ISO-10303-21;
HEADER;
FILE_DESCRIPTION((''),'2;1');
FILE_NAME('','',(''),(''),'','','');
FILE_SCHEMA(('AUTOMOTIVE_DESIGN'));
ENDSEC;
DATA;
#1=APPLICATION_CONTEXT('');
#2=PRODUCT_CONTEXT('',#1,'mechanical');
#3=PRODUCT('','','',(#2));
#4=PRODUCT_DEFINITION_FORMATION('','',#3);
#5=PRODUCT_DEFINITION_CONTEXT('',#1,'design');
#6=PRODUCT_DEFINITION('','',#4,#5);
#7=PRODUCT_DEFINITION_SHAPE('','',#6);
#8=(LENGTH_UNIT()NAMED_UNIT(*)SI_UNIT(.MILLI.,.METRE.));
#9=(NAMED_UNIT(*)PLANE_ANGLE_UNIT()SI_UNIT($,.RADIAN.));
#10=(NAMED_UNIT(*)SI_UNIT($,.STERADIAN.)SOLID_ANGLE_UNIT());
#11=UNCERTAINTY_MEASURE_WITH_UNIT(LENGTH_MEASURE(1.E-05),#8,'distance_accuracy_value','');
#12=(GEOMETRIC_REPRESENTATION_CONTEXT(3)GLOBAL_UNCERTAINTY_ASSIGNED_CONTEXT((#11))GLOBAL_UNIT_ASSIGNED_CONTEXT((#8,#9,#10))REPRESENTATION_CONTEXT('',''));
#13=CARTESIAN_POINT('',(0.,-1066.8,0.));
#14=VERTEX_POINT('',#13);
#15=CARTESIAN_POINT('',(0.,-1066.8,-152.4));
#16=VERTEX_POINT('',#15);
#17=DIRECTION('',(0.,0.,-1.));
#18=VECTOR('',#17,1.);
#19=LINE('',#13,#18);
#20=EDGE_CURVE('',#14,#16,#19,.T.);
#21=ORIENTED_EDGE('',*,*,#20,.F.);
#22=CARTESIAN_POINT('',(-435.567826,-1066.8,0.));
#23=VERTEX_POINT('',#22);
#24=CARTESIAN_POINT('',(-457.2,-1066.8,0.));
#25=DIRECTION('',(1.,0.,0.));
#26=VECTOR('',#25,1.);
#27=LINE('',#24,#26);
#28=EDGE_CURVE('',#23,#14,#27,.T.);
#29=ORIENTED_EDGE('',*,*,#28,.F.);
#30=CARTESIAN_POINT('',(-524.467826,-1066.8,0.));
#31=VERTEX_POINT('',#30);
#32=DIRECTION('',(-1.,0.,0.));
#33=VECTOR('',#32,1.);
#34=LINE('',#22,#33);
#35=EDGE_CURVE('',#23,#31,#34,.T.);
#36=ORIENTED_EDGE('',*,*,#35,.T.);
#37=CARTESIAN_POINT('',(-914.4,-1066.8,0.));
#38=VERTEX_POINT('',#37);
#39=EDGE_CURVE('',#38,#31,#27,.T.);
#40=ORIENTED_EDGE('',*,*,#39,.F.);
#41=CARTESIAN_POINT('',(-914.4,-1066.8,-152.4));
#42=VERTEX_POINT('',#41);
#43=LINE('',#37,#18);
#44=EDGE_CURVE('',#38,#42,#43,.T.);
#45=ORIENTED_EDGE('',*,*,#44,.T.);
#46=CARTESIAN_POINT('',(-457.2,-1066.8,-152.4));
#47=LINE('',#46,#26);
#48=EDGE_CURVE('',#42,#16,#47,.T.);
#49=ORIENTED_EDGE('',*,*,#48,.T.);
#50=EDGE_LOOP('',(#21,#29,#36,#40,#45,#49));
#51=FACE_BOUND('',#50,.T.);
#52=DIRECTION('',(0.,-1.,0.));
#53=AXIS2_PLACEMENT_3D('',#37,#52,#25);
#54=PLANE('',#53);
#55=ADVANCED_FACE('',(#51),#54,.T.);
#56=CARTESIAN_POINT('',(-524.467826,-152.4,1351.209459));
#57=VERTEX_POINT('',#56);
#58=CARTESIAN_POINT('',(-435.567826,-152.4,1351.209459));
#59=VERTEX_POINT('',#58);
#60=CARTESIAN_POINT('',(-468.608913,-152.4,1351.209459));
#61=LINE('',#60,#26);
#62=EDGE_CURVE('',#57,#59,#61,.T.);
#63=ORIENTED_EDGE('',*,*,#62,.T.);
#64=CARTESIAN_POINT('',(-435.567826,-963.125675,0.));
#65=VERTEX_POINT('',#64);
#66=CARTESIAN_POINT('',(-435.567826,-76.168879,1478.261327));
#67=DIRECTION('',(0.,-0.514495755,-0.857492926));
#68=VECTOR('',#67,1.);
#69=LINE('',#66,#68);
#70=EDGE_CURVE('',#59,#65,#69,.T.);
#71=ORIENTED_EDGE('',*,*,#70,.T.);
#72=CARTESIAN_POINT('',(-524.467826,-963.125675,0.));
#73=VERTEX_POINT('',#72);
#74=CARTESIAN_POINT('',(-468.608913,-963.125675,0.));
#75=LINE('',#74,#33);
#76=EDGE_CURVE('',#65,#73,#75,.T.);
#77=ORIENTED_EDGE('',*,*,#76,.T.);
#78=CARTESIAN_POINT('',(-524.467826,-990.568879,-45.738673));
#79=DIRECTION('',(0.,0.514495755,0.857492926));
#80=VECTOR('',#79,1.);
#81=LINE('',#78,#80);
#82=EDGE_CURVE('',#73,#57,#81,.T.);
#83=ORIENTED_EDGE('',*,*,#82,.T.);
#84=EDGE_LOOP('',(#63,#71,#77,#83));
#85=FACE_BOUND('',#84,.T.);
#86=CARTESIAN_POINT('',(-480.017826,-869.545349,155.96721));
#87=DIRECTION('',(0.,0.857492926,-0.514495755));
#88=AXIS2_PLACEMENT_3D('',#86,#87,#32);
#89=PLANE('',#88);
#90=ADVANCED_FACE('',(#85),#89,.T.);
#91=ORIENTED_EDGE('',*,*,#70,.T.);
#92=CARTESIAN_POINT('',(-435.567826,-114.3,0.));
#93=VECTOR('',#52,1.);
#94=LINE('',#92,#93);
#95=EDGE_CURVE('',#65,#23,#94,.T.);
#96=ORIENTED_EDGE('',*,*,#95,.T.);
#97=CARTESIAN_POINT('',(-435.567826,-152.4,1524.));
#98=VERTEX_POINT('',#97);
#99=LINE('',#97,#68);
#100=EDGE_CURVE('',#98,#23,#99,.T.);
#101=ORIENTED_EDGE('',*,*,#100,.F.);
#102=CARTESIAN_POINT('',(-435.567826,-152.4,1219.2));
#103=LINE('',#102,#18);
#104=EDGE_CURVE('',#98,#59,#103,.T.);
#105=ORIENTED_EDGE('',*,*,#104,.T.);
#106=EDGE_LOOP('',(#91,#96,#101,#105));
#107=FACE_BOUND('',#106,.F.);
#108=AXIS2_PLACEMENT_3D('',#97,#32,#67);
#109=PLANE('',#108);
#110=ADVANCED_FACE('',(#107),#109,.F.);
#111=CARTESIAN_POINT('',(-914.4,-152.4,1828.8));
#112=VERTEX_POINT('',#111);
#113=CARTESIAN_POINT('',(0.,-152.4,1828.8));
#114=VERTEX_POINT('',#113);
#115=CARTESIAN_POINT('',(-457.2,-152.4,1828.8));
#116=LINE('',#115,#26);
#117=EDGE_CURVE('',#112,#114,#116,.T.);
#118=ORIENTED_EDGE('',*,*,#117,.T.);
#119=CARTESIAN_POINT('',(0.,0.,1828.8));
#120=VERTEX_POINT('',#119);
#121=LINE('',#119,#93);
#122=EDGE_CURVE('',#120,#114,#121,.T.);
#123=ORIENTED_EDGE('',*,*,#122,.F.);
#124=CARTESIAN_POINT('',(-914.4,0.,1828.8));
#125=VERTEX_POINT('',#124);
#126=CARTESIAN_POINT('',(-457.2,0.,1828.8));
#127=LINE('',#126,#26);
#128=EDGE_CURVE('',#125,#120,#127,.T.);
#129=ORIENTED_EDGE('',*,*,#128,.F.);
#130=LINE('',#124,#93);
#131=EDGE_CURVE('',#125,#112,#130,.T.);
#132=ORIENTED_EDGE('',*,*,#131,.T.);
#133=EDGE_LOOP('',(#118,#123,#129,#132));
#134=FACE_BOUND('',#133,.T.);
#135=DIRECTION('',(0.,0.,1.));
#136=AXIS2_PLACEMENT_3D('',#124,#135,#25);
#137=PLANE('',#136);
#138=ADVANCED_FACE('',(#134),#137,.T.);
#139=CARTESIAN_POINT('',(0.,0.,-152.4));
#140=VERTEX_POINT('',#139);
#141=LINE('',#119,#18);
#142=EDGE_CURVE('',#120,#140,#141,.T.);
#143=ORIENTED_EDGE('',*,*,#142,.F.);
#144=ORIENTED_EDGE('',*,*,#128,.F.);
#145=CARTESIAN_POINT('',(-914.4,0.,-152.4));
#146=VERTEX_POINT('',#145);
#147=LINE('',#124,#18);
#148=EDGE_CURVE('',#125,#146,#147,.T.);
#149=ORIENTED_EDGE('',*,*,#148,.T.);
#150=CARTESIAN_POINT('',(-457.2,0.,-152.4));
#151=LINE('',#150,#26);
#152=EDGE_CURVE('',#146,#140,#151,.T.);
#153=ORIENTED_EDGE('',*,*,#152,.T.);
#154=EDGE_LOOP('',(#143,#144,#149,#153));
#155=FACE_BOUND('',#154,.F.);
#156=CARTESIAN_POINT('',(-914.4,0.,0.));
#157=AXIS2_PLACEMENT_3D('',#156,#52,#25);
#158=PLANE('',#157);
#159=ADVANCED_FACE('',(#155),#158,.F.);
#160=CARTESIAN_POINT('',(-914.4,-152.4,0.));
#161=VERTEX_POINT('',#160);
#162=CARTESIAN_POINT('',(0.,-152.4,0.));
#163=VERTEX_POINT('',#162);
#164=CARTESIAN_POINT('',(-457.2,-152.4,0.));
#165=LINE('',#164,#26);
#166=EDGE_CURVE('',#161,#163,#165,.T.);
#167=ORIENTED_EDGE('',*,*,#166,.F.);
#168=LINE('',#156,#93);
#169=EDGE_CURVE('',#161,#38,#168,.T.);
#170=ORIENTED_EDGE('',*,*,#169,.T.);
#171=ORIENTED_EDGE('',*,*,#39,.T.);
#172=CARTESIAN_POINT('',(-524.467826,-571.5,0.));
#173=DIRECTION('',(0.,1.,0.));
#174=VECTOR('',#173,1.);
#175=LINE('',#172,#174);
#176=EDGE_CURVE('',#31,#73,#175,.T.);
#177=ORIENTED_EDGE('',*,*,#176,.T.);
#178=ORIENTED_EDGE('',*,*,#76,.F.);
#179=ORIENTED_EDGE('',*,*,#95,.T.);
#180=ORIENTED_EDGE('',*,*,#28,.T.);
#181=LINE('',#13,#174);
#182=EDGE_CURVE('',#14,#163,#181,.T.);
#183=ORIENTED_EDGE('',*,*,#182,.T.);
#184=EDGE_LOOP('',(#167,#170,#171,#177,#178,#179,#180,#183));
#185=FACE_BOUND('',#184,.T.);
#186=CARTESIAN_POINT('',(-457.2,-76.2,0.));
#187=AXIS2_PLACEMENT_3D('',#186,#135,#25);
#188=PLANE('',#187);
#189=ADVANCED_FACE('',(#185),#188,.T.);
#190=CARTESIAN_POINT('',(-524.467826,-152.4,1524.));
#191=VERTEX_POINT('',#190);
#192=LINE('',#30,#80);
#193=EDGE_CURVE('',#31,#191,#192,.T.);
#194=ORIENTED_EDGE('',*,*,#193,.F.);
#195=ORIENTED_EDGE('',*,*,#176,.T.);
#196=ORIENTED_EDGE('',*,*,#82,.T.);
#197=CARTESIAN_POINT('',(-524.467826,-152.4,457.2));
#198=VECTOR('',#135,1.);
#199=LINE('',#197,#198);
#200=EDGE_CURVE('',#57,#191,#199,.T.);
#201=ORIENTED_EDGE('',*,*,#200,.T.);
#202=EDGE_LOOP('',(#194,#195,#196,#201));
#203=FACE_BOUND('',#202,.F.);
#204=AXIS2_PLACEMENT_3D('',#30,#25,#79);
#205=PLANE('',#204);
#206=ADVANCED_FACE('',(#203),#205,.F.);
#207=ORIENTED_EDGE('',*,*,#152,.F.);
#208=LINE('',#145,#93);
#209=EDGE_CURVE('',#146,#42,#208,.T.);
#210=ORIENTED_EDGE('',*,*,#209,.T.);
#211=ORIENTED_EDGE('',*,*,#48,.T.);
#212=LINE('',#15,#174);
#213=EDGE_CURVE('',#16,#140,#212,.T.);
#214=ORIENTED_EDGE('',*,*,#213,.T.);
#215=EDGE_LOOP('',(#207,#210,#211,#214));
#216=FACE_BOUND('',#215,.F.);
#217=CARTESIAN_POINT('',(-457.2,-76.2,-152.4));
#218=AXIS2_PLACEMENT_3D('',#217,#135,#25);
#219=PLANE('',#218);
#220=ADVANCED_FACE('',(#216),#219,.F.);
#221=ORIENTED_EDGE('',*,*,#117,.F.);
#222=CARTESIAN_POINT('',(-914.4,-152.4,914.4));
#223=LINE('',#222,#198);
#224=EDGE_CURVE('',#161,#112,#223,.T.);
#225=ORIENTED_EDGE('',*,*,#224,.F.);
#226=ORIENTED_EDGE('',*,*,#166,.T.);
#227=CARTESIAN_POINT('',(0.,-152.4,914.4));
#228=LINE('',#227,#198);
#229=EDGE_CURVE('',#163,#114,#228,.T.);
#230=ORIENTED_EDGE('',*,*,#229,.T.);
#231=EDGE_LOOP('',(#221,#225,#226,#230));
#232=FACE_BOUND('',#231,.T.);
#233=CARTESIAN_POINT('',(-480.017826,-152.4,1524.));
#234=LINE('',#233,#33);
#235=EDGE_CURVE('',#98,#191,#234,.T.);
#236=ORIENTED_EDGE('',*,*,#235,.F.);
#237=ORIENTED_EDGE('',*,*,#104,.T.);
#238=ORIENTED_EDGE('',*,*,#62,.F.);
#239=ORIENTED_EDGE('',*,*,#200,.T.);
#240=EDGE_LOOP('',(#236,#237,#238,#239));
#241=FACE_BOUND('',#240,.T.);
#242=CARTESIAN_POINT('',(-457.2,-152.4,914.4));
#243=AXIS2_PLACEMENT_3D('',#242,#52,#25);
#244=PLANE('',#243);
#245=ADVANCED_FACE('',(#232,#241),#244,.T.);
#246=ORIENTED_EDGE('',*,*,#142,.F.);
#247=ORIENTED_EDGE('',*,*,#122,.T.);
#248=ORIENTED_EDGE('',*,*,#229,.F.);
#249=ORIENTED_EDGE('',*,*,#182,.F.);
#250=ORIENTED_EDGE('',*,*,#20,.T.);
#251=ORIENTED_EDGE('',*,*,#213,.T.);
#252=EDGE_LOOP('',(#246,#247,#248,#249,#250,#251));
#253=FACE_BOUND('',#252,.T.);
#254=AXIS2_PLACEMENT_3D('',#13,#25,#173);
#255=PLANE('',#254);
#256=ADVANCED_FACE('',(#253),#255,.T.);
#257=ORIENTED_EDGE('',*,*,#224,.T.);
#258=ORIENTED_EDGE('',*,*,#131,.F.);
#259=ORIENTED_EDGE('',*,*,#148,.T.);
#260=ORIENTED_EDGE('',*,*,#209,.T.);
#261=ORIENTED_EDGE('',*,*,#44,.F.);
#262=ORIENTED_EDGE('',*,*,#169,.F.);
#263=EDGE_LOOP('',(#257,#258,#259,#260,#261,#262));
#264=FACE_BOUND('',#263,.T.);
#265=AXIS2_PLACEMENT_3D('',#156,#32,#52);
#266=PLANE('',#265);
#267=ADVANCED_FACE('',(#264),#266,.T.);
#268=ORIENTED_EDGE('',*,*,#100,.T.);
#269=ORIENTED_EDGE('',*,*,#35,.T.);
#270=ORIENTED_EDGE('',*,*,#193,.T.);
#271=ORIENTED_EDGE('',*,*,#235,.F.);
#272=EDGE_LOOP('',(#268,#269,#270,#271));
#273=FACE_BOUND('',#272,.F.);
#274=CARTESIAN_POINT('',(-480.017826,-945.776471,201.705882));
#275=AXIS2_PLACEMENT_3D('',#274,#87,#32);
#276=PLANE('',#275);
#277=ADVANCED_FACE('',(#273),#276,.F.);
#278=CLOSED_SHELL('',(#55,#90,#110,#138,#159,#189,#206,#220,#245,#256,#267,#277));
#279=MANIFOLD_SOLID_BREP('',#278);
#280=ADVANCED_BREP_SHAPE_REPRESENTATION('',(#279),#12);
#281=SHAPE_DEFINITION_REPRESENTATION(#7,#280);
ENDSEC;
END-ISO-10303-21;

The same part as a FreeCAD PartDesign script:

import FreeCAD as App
import Part
import Sketcher
Q = App.Units.Quantity

doc = App.newDocument("Part")
body = doc.addObject("PartDesign::Body", "Body")

sketch1 = doc.addObject("Sketcher::SketchObject", "Sketch")
body.addObject(sketch1)
sketch1.AttachmentSupport = (doc.XZ_Plane, [""])
sketch1.MapMode = "FlatFace"
sketch1.addGeometry([
    Part.LineSegment(App.Vector(-914, 1829, 0), App.Vector(-914, 0, 0)),
    Part.LineSegment(App.Vector(-914, 0, 0), App.Vector(0, 0, 0)),
    Part.LineSegment(App.Vector(0, 0, 0), App.Vector(0, 1829, 0)),
    Part.LineSegment(App.Vector(0, 1829, 0), App.Vector(-914, 1829, 0)),
], False)
sketch1.addConstraint([
    Sketcher.Constraint("Coincident", 0, 2, 1, 1),
    Sketcher.Constraint("Coincident", 1, 2, 2, 1),
    Sketcher.Constraint("Coincident", 2, 2, 3, 1),
    Sketcher.Constraint("Coincident", 3, 2, 0, 1),
    Sketcher.Constraint("Vertical", 0),
    Sketcher.Constraint("Horizontal", 1),
    Sketcher.Constraint("Vertical", 2),
    Sketcher.Constraint("Horizontal", 3),
    Sketcher.Constraint("Coincident", 1, 2, -1, 1),
    Sketcher.Constraint("DistanceX", 1, 1, 1, 2, Q("36 in")),
    Sketcher.Constraint("DistanceY", 0, 2, 0, 1, Q("72 in")),
])
pad1 = doc.addObject("PartDesign::Pad", "Pad")
body.addObject(pad1)
pad1.Profile = sketch1
pad1.Length = Q("6 in")

sketch2 = doc.addObject("Sketcher::SketchObject", "Sketch001")
body.addObject(sketch2)
sketch2.AttachmentSupport = (doc.XY_Plane, [""])
sketch2.MapMode = "FlatFace"
sketch2.addGeometry([
    Part.LineSegment(App.Vector(-914, 0, 0), App.Vector(-914, -1067, 0)),
    Part.LineSegment(App.Vector(-914, -1067, 0), App.Vector(0, -1067, 0)),
    Part.LineSegment(App.Vector(0, -1067, 0), App.Vector(0, 0, 0)),
    Part.LineSegment(App.Vector(0, 0, 0), App.Vector(-914, 0, 0)),
], False)
sketch2.addConstraint([
    Sketcher.Constraint("Coincident", 0, 2, 1, 1),
    Sketcher.Constraint("Coincident", 1, 2, 2, 1),
    Sketcher.Constraint("Coincident", 2, 2, 3, 1),
    Sketcher.Constraint("Coincident", 3, 2, 0, 1),
    Sketcher.Constraint("Vertical", 0),
    Sketcher.Constraint("Horizontal", 1),
    Sketcher.Constraint("Vertical", 2),
    Sketcher.Constraint("Horizontal", 3),
    Sketcher.Constraint("Coincident", 2, 2, -1, 1),
    Sketcher.Constraint("DistanceX", 1, 1, 1, 2, Q("36 in")),
    Sketcher.Constraint("DistanceY", 0, 2, 0, 1, Q("42 in")),
])
pad2 = doc.addObject("PartDesign::Pad", "Pad001")
body.addObject(pad2)
pad2.Profile = sketch2
pad2.Length = Q("6 in")
pad2.Reversed = True

sketch3 = doc.addObject("Sketcher::SketchObject", "Sketch002")
body.addObject(sketch3)
sketch3.Placement = App.Placement(App.Vector(0, -784.411765, 470.647059), App.Rotation(App.Vector(-1, 0, 0), App.Vector(0, 0.514495755, 0.857492926), App.Vector(0, 0.857492926, -0.514495755), "ZXY"))
sketch3.addGeometry([
    Part.LineSegment(App.Vector(436, -549, 0), App.Vector(524, -549, 0)),
    Part.LineSegment(App.Vector(524, -549, 0), App.Vector(524, 1228, 0)),
    Part.LineSegment(App.Vector(524, 1228, 0), App.Vector(436, 1228, 0)),
    Part.LineSegment(App.Vector(436, 1228, 0), App.Vector(436, -549, 0)),
], False)
sketch3.addConstraint([
    Sketcher.Constraint("Coincident", 0, 2, 1, 1),
    Sketcher.Constraint("Coincident", 1, 2, 2, 1),
    Sketcher.Constraint("Coincident", 2, 2, 3, 1),
    Sketcher.Constraint("Coincident", 3, 2, 0, 1),
    Sketcher.Constraint("Horizontal", 0),
    Sketcher.Constraint("Vertical", 1),
    Sketcher.Constraint("Horizontal", 2),
    Sketcher.Constraint("Vertical", 3),
    Sketcher.Constraint("DistanceX", 0, 1, 0, 2, Q("3.5 in")),
    Sketcher.Constraint("DistanceY", 1, 1, 1, 2, Q("1777.274138 mm")),
    Sketcher.Constraint("DistanceY", 0, 2, -1, 1, Q("548.864072 mm")),
    Sketcher.Constraint("DistanceX", -1, 1, 0, 2, Q("524.467826 mm")),
])
pad3 = doc.addObject("PartDesign::Pad", "Pad002")
body.addObject(pad3)
pad3.Profile = sketch3
pad3.Length = Q("3.5 in")

doc.recompute()
